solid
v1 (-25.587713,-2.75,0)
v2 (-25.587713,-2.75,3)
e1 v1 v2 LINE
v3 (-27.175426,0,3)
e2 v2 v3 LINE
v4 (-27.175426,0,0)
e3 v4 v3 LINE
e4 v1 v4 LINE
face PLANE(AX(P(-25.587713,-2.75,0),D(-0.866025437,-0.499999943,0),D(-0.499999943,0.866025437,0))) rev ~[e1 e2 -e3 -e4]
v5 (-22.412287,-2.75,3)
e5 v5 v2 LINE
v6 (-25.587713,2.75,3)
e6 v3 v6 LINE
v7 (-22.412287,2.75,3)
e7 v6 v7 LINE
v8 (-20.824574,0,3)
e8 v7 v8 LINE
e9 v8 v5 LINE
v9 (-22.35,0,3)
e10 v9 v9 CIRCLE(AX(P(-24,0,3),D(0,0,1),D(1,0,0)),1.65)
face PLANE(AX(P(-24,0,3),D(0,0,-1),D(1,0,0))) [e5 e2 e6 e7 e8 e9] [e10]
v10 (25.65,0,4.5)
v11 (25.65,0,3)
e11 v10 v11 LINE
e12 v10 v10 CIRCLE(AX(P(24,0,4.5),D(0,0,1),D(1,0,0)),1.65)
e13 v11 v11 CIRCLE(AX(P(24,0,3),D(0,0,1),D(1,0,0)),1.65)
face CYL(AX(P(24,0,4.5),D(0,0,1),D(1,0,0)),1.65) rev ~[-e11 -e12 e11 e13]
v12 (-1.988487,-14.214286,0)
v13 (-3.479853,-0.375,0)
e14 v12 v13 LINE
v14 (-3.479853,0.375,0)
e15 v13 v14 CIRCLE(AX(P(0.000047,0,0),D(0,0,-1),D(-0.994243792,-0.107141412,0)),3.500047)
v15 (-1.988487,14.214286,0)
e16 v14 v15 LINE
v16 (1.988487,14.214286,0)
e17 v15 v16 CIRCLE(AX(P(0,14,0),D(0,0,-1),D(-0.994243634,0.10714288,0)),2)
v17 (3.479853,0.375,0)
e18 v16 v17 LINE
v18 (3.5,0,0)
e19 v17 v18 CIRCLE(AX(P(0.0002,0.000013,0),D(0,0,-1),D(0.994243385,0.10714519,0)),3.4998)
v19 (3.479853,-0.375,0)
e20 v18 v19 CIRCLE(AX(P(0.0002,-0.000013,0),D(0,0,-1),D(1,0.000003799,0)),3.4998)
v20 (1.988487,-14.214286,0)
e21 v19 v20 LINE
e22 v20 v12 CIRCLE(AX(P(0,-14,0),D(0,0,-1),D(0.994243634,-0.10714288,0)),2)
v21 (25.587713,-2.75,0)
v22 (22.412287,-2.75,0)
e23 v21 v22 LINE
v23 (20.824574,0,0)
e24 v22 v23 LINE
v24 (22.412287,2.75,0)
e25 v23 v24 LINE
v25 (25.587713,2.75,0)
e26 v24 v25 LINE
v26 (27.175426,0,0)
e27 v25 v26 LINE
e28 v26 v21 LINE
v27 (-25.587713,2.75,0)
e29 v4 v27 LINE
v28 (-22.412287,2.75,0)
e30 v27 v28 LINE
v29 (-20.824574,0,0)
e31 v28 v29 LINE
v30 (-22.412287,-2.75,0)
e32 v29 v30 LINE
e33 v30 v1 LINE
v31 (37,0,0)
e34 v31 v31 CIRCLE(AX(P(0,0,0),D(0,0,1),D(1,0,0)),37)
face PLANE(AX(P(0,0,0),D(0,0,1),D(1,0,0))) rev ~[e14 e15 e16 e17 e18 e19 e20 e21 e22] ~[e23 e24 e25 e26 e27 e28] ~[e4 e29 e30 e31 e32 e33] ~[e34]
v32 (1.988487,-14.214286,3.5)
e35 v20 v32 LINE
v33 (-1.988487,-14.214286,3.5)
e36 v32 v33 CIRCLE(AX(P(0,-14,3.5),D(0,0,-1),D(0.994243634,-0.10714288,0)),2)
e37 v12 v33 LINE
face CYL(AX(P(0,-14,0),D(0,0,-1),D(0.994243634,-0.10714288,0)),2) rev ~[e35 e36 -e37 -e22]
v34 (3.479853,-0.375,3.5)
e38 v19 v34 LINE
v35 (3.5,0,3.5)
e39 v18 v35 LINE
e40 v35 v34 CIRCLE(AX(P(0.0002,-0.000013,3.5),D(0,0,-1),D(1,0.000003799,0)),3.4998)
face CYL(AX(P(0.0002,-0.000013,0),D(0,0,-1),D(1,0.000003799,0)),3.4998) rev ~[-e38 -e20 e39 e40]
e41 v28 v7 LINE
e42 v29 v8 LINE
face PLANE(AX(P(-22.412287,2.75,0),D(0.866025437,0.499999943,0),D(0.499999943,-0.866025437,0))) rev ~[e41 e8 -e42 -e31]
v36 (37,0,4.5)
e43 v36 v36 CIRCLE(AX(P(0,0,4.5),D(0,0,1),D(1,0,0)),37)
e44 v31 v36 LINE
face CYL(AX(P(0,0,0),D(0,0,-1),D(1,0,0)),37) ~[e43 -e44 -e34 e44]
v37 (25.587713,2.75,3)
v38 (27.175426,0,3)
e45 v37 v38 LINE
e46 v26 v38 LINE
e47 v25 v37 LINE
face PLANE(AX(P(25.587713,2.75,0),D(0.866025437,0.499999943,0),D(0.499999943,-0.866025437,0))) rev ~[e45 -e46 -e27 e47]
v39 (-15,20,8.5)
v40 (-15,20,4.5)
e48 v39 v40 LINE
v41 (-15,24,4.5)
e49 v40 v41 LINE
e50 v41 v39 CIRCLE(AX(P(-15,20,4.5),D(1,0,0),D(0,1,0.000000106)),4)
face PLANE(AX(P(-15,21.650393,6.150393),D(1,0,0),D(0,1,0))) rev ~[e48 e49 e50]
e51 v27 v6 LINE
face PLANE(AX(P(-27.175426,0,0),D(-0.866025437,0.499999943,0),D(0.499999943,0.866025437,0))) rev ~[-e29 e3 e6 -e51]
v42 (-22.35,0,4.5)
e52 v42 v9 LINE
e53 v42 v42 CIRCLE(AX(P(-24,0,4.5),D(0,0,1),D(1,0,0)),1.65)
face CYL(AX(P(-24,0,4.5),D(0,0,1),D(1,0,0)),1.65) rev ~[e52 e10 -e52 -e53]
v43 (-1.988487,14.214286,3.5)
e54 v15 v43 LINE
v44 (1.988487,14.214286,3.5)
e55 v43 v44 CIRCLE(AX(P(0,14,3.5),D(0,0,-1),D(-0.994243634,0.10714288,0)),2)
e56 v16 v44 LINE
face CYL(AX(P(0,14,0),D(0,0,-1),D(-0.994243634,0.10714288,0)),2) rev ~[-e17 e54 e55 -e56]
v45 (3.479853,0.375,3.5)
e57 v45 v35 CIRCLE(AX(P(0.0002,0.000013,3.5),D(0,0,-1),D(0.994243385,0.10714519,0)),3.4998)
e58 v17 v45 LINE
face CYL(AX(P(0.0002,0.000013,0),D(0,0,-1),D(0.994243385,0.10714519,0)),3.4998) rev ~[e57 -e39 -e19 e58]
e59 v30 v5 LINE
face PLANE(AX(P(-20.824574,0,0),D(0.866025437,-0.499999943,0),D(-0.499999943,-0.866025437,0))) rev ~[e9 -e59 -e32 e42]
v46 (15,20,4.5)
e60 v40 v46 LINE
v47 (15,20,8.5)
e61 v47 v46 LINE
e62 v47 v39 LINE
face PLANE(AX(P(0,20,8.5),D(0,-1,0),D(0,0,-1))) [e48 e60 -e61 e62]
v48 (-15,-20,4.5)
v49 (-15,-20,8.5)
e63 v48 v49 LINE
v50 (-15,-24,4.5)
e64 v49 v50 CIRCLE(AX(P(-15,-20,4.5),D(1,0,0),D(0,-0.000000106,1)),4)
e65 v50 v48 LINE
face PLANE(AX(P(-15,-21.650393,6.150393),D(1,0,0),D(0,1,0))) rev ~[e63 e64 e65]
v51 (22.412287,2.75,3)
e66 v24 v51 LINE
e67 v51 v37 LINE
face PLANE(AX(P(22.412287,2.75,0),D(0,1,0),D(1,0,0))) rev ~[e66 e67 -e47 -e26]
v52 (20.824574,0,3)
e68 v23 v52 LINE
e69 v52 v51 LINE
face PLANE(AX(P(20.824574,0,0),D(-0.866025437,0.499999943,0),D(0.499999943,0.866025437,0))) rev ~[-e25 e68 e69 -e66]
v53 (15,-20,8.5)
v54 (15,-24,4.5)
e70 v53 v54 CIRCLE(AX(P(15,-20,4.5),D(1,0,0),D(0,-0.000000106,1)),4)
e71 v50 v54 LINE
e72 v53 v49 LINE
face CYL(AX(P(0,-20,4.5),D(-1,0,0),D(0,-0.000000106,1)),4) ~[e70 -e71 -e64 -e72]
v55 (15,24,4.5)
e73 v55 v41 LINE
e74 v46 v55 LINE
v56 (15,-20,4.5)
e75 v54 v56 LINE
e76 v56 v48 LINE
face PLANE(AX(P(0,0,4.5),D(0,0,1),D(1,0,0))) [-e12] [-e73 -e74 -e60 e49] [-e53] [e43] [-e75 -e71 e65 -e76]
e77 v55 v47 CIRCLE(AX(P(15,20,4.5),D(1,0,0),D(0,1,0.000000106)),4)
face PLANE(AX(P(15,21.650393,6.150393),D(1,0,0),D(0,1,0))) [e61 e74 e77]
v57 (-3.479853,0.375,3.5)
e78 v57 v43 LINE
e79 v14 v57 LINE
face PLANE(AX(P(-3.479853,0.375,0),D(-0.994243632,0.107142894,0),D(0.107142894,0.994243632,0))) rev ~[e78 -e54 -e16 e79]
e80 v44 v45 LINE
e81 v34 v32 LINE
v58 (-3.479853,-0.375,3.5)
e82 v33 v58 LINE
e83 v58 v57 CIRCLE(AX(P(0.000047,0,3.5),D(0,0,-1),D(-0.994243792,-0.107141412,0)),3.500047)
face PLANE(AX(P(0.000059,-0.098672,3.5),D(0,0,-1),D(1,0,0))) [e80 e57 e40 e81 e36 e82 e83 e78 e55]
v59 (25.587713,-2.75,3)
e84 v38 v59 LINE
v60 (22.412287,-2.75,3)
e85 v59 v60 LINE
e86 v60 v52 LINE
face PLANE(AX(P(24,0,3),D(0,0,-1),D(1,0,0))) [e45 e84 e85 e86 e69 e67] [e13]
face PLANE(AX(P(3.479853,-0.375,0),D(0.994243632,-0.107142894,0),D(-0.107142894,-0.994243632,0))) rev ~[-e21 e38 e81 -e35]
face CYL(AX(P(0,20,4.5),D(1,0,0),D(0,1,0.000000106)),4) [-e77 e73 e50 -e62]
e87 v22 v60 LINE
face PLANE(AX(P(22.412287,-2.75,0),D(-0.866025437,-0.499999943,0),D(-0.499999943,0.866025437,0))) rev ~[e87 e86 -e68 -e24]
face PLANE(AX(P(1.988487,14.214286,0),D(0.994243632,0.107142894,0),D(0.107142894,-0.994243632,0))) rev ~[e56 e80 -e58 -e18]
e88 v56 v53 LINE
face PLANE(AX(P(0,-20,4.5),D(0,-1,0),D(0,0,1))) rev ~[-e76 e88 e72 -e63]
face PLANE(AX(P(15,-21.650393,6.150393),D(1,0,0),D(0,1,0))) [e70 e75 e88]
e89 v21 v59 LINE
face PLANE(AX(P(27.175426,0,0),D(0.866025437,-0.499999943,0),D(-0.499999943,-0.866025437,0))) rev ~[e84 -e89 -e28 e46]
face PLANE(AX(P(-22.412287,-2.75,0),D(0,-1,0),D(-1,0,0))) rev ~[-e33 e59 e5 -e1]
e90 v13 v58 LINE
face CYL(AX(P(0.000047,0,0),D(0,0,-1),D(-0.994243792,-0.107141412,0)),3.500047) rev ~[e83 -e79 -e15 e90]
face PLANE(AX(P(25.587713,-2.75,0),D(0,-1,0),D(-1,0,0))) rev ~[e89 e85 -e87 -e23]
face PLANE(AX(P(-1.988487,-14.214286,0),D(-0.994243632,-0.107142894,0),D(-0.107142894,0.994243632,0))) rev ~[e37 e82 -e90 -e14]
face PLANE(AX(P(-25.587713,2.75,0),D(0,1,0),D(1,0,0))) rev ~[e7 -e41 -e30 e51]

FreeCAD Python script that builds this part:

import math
import FreeCAD as App
import Part
import Sketcher

V = App.Vector
Q = App.Units.Quantity

doc = App.newDocument("Part")
body = doc.addObject("PartDesign::Body", "Body")

# Sketch on XY plane
sketch1 = body.newObject("Sketcher::SketchObject", "Sketch")
sketch1.AttachmentSupport = (doc.getObject("XY_Plane"), [""])
sketch1.MapMode = "FlatFace"
sketch1.addGeometry(Part.Circle(V(0, 0, 0), V(0, 0, 1), 37), False)
sketch1.addConstraint([
    Sketcher.Constraint("Coincident", 0, 3, -1, 1),
    Sketcher.Constraint("Diameter", 0, Q("74 mm")),
])
pad1 = body.newObject("PartDesign::Pad", "Pad")
pad1.Profile = sketch1
pad1.Length = 4.5

# Sketch on XY plane
sketch2 = body.newObject("Sketcher::SketchObject", "Sketch001")
sketch2.AttachmentSupport = (doc.getObject("XY_Plane"), [""])
sketch2.MapMode = "FlatFace"
sketch2.addGeometry([
    Part.ArcOfCircle(Part.Circle(V(0.0002, 0.000013, 0), V(0, 0, 1), 3.4998), math.radians(-0.000218), math.radians(6.150774)),  # 0
    Part.ArcOfCircle(Part.Circle(V(0.0002, -0.000013, 0), V(0, 0, 1), 3.4998), math.radians(-6.150774), math.radians(0.000218)),  # 1
    Part.LineSegment(V(3.479853, -0.375, 0), V(1.988487, -14.214286, 0)),  # 2
    Part.ArcOfCircle(Part.Circle(V(0, -14, 0), V(0, 0, 1), 2), math.radians(-173.849359), math.radians(-6.150641)),  # 3
    Part.LineSegment(V(-1.988487, -14.214286, 0), V(-3.479853, -0.375, 0)),  # 4
    Part.ArcOfCircle(Part.Circle(V(0.000047, 0, 0), V(0, 0, 1), 3.500047), math.radians(173.849443), math.radians(186.150557)),  # 5
    Part.LineSegment(V(-3.479853, 0.375, 0), V(-1.988487, 14.214286, 0)),  # 6
    Part.ArcOfCircle(Part.Circle(V(0, 14, 0), V(0, 0, 1), 2), math.radians(6.150641), math.radians(173.849359)),  # 7
    Part.LineSegment(V(1.988487, 14.214286, 0), V(3.479853, 0.375, 0)),  # 8
], False)
sketch2.addConstraint([
    Sketcher.Constraint("Coincident", 0, 1, 1, 2),
    Sketcher.Constraint("Coincident", 1, 1, 2, 1),
    Sketcher.Constraint("Coincident", 2, 2, 3, 2),
    Sketcher.Constraint("Coincident", 3, 1, 4, 1),
    Sketcher.Constraint("Coincident", 4, 2, 5, 2),
    Sketcher.Constraint("Coincident", 5, 1, 6, 1),
    Sketcher.Constraint("Coincident", 6, 2, 7, 2),
    Sketcher.Constraint("Coincident", 7, 1, 8, 1),
    Sketcher.Constraint("Coincident", 8, 2, 0, 2),
    Sketcher.Constraint("PointOnObject", 3, 3, -2),
    Sketcher.Constraint("PointOnObject", 5, 3, -1),
    Sketcher.Constraint("PointOnObject", 7, 3, -2),
    Sketcher.Constraint("PointOnObject", 0, 1, -1),
    Sketcher.Constraint("Radius", 3, Q("2 mm")),
    Sketcher.Constraint("Radius", 7, Q("2 mm")),
    Sketcher.Constraint("DistanceY", 3, 3, -1, 1, Q("14 mm")),
    Sketcher.Constraint("DistanceY", -1, 1, 7, 3, Q("14 mm")),
    Sketcher.Constraint("DistanceX", -1, 1, 0, 1, Q("3.5 mm")),
    Sketcher.Constraint("Radius", 0, Q("3.4998 mm")),
    Sketcher.Constraint("Radius", 1, Q("3.4998 mm")),
    Sketcher.Constraint("DistanceY", 4, 2, 5, 1, Q("0.75 mm")),
    Sketcher.Constraint("DistanceY", 1, 1, 8, 2, Q("0.75 mm")),
    Sketcher.Constraint("DistanceY", 1, 1, -1, 1, Q("0.375 mm")),
    Sketcher.Constraint("DistanceY", 4, 2, -1, 1, Q("0.375 mm")),
    Sketcher.Constraint("Radius", 5, Q("3.500047 mm")),
    Sketcher.Constraint("DistanceY", 2, 2, 0, 3, Q("14.214299 mm")),
    Sketcher.Constraint("DistanceY", 3, 1, 0, 3, Q("14.214299 mm")),
    Sketcher.Constraint("DistanceY", 1, 3, 6, 2, Q("14.214299 mm")),
    Sketcher.Constraint("DistanceY", 1, 3, 7, 1, Q("14.214299 mm")),
    Sketcher.Constraint("Distance", 2, Q("13.919411 mm")),
    Sketcher.Constraint("Distance", 4, Q("13.919411 mm")),
    Sketcher.Constraint("Distance", 6, Q("13.919411 mm")),
])
pocket1 = body.newObject("PartDesign::Pocket", "Pocket")
pocket1.Profile = sketch2
pocket1.Length = 3.5
pocket1.Reversed = True

# Sketch on YZ plane
sketch3 = body.newObject("Sketcher::SketchObject", "Sketch002")
sketch3.AttachmentSupport = (doc.getObject("YZ_Plane"), [""])
sketch3.MapMode = "FlatFace"
sketch3.addGeometry([
    Part.ArcOfCircle(Part.Circle(V(-20, 4.5, 0), V(0, 0, 1), 4), math.radians(90.000006), math.radians(179.999994)),  # 0
    Part.LineSegment(V(-24, 4.5, 0), V(-20, 4.5, 0)),  # 1
    Part.LineSegment(V(-20, 4.5, 0), V(-20, 8.5, 0)),  # 2
    Part.LineSegment(V(20, 8.5, 0), V(20, 4.5, 0)),  # 3
    Part.LineSegment(V(20, 4.5, 0), V(24, 4.5, 0)),  # 4
    Part.ArcOfCircle(Part.Circle(V(20, 4.5, 0), V(0, 0, 1), 4), math.radians(0.000006), math.radians(89.999994)),  # 5
], False)
sketch3.addConstraint([
    Sketcher.Constraint("Coincident", 0, 2, 1, 1),
    Sketcher.Constraint("Coincident", 1, 2, 2, 1),
    Sketcher.Constraint("Coincident", 2, 2, 0, 1),
    Sketcher.Constraint("Coincident", 3, 2, 4, 1),
    Sketcher.Constraint("Coincident", 4, 2, 5, 1),
    Sketcher.Constraint("Coincident", 5, 2, 3, 1),
    Sketcher.Constraint("Horizontal", 1),
    Sketcher.Constraint("Vertical", 2),
    Sketcher.Constraint("Vertical", 3),
    Sketcher.Constraint("Horizontal", 4),
    Sketcher.Constraint("Coincident", 1, 2, 0, 3),
    Sketcher.Constraint("Coincident", 3, 2, 5, 3),
    Sketcher.Constraint("Equal", 0, 5),
    Sketcher.Constraint("Symmetric", 0, 3, 5, 3, -2),
    Sketcher.Constraint("Radius", 0, Q("4 mm")),
    Sketcher.Constraint("DistanceX", 0, 3, -1, 1, Q("20 mm")),
    Sketcher.Constraint("DistanceY", -1, 1, 0, 3, Q("4.5 mm")),
])
pad2 = body.newObject("PartDesign::Pad", "Pad001")
pad2.Profile = sketch3
pad2.Length = 30
pad2.Midplane = True

# Sketch on XY plane
sketch4 = body.newObject("Sketcher::SketchObject", "Sketch003")
sketch4.AttachmentSupport = (doc.getObject("XY_Plane"), [""])
sketch4.MapMode = "FlatFace"
sketch4.AttachmentOffset = App.Placement(V(0, 0, 4.5), App.Rotation())
sketch4.addGeometry([
    Part.Circle(V(-24, 0, 0), V(0, 0, 1), 1.65),
    Part.Circle(V(24, 0, 0), V(0, 0, 1), 1.65),
], False)
sketch4.addConstraint([
    Sketcher.Constraint("Equal", 0, 1),
    Sketcher.Constraint("Symmetric", 0, 3, 1, 3, -1, 1),
    Sketcher.Constraint("PointOnObject", 0, 3, -1),
    Sketcher.Constraint("Diameter", 0, Q("3.3 mm")),
    Sketcher.Constraint("DistanceX", 0, 3, -1, 1, Q("24 mm")),
])
pocket2 = body.newObject("PartDesign::Pocket", "Pocket001")
pocket2.Profile = sketch4
pocket2.Type = "ThroughAll"

# Sketch on XY plane
sketch5 = body.newObject("Sketcher::SketchObject", "Sketch004")
sketch5.AttachmentSupport = (doc.getObject("XY_Plane"), [""])
sketch5.MapMode = "FlatFace"
sketch5.addGeometry([
    Part.LineSegment(V(22.412287, -2.75, 0), V(20.824574, 0, 0)),  # 0
    Part.LineSegment(V(20.824574, 0, 0), V(22.412287, 2.75, 0)),  # 1
    Part.LineSegment(V(22.412287, 2.75, 0), V(25.587713, 2.75, 0)),  # 2
    Part.LineSegment(V(25.587713, 2.75, 0), V(27.175426, 0, 0)),  # 3
    Part.LineSegment(V(27.175426, 0, 0), V(25.587713, -2.75, 0)),  # 4
    Part.LineSegment(V(25.587713, -2.75, 0), V(22.412287, -2.75, 0)),  # 5
    Part.LineSegment(V(-22.412287, 2.75, 0), V(-20.824574, 0, 0)),  # 6
    Part.LineSegment(V(-20.824574, 0, 0), V(-22.412287, -2.75, 0)),  # 7
    Part.LineSegment(V(-22.412287, -2.75, 0), V(-25.587713, -2.75, 0)),  # 8
    Part.LineSegment(V(-25.587713, -2.75, 0), V(-27.175426, 0, 0)),  # 9
    Part.LineSegment(V(-27.175426, 0, 0), V(-25.587713, 2.75, 0)),  # 10
    Part.LineSegment(V(-25.587713, 2.75, 0), V(-22.412287, 2.75, 0)),  # 11
], False)
sketch5.addConstraint([
    Sketcher.Constraint("Coincident", 0, 2, 1, 1),
    Sketcher.Constraint("Coincident", 1, 2, 2, 1),
    Sketcher.Constraint("Coincident", 2, 2, 3, 1),
    Sketcher.Constraint("Coincident", 3, 2, 4, 1),
    Sketcher.Constraint("Coincident", 4, 2, 5, 1),
    Sketcher.Constraint("Coincident", 5, 2, 0, 1),
    Sketcher.Constraint("Coincident", 6, 2, 7, 1),
    Sketcher.Constraint("Coincident", 7, 2, 8, 1),
    Sketcher.Constraint("Coincident", 8, 2, 9, 1),
    Sketcher.Constraint("Coincident", 9, 2, 10, 1),
    Sketcher.Constraint("Coincident", 10, 2, 11, 1),
    Sketcher.Constraint("Coincident", 11, 2, 6, 1),
    Sketcher.Constraint("Horizontal", 2),
    Sketcher.Constraint("Horizontal", 5),
    Sketcher.Constraint("Horizontal", 8),
    Sketcher.Constraint("Horizontal", 11),
    Sketcher.Constraint("Symmetric", 0, 2, 6, 2, -1, 1),
    Sketcher.Constraint("Symmetric", 1, 2, 7, 2, -1, 1),
    Sketcher.Constraint("Symmetric", 3, 2, 9, 2, -1, 1),
    Sketcher.Constraint("Symmetric", 4, 2, 10, 2, -1, 1),
    Sketcher.Constraint("Symmetric", 5, 2, 7, 2, -2),
    Sketcher.Constraint("PointOnObject", 0, 2, -1),
    Sketcher.Constraint("PointOnObject", 3, 2, -1),
    Sketcher.Constraint("Parallel", 0, 3),
    Sketcher.Constraint("Parallel", 1, 4),
    Sketcher.Constraint("Parallel", 3, 6),
    Sketcher.Constraint("Parallel", 6, 9),
    Sketcher.Constraint("Angle", 0, Q("119.999996 deg")),
    Sketcher.Constraint("DistanceX", 7, 2, 4, 2, Q("48 mm")),
    Sketcher.Constraint("DistanceY", 4, 2, 2, 2, Q("5.5 mm")),
    Sketcher.Constraint("DistanceX", 2, 1, 2, 2, Q("3.175426 mm")),
])
pocket3 = body.newObject("PartDesign::Pocket", "Pocket002")
pocket3.Profile = sketch5
pocket3.Length = 3
pocket3.Reversed = True

doc.recompute()
